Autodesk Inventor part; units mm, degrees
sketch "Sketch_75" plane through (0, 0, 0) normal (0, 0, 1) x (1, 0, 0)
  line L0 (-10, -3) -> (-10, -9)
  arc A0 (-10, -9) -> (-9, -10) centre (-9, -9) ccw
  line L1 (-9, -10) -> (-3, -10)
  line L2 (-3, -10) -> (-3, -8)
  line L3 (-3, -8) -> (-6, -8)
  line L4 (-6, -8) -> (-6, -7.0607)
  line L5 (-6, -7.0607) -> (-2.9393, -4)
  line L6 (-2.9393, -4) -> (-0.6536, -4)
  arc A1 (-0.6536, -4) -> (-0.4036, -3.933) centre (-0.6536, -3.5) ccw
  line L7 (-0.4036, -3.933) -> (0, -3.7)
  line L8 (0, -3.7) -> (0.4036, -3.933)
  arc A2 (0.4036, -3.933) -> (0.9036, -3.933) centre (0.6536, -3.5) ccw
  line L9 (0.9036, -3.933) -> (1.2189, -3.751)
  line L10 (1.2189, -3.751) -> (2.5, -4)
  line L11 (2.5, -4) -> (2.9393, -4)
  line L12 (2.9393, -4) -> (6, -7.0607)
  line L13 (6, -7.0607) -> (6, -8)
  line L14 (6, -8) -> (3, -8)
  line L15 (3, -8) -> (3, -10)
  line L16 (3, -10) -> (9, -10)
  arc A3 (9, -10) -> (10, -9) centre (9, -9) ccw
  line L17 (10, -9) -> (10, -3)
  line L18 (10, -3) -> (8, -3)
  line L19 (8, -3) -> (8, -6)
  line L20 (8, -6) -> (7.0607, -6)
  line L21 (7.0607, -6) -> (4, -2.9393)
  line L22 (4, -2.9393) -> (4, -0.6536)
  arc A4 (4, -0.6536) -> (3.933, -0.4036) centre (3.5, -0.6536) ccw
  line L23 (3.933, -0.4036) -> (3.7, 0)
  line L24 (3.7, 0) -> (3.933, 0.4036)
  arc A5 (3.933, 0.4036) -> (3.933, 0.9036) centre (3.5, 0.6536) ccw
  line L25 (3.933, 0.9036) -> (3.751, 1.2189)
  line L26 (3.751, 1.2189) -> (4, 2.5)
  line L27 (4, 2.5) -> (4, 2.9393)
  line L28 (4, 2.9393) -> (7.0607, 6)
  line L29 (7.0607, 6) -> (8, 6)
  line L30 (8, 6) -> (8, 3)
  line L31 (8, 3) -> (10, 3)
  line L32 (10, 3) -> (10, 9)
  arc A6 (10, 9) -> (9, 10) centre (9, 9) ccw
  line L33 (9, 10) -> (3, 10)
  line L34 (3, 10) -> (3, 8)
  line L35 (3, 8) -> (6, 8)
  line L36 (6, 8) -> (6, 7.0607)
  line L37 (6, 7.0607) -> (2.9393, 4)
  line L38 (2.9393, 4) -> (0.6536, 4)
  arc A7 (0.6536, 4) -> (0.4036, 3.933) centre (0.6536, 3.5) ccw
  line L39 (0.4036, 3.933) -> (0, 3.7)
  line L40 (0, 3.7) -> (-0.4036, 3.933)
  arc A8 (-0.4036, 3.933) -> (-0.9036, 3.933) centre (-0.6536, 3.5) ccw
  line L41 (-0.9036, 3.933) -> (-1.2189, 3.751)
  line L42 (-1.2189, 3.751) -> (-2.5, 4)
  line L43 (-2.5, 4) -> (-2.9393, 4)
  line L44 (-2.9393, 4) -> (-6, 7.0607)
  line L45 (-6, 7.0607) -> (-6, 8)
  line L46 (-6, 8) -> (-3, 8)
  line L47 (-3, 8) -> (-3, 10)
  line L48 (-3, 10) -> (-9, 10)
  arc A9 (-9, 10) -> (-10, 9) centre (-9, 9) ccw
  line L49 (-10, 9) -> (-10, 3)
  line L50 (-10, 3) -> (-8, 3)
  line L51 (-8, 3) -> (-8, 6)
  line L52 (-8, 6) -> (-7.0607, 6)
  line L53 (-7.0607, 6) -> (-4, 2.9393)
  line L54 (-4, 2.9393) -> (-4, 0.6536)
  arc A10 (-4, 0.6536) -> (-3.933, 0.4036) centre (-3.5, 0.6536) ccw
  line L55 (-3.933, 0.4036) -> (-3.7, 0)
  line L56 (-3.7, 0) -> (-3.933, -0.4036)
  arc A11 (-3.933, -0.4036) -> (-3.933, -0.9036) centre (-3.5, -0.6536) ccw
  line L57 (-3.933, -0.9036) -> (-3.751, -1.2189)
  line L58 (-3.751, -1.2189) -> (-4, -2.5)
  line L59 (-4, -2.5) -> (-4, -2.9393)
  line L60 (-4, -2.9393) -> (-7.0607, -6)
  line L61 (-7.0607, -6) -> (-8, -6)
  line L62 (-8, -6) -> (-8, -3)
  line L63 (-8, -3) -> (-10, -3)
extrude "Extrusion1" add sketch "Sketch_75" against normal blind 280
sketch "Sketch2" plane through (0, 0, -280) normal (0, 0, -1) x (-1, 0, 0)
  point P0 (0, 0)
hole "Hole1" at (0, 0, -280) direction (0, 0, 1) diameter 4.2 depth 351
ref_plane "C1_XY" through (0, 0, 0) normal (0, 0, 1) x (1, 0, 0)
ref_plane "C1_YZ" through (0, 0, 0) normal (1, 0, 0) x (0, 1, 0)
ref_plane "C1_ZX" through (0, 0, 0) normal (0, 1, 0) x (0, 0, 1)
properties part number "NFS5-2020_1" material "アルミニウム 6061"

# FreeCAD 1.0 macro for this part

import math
import FreeCAD as App
import Part
import Sketcher
Q = App.Units.Quantity

doc = App.newDocument("Part")
body = doc.addObject("PartDesign::Body", "Body")

# Sketch on XY plane
sketch1 = body.newObject("Sketcher::SketchObject", "Sketch")
sketch1.AttachmentSupport = (doc.getObject("XY_Plane"), [""])
sketch1.MapMode = "FlatFace"
sketch1.addGeometry(Part.LineSegment(App.Vector(-8, -3, 0), App.Vector(-10, -3, 0)), False)
sketch1.addGeometry(Part.LineSegment(App.Vector(-10, -3, 0), App.Vector(-10, -9, 0)), False)
sketch1.addGeometry(Part.ArcOfCircle(Part.Circle(App.Vector(-9, -9, 0), App.Vector(0, 0, 1), 1), math.radians(180), math.radians(270)), False)
sketch1.addGeometry(Part.LineSegment(App.Vector(-9, -10, 0), App.Vector(-3, -10, 0)), False)
sketch1.addGeometry(Part.LineSegment(App.Vector(-3, -10, 0), App.Vector(-3, -8, 0)), False)
sketch1.addGeometry(Part.LineSegment(App.Vector(-3, -8, 0), App.Vector(-6, -8, 0)), False)
sketch1.addGeometry(Part.LineSegment(App.Vector(-6, -8, 0), App.Vector(-6, -7.06, 0)), False)
sketch1.addGeometry(Part.LineSegment(App.Vector(-6, -7.06, 0), App.Vector(-2.94, -4, 0)), False)
sketch1.addGeometry(Part.LineSegment(App.Vector(-2.94, -4, 0), App.Vector(-0.65, -4, 0)), False)
sketch1.addGeometry(Part.ArcOfCircle(Part.Circle(App.Vector(-0.65, -3.5, 0), App.Vector(0, 0, 1), 0.5), math.radians(-90), math.radians(-60)), False)
sketch1.addGeometry(Part.LineSegment(App.Vector(-0.4, -3.93, 0), App.Vector(0, -3.7, 0)), False)
sketch1.addGeometry(Part.LineSegment(App.Vector(0, -3.7, 0), App.Vector(0.4, -3.93, 0)), False)
sketch1.addGeometry(Part.ArcOfCircle(Part.Circle(App.Vector(0.65, -3.5, 0), App.Vector(0, 0, 1), 0.5), math.radians(-120), math.radians(-60)), False)
sketch1.addGeometry(Part.LineSegment(App.Vector(0.9, -3.93, 0), App.Vector(1.22, -3.75, 0)), False)
sketch1.addGeometry(Part.LineSegment(App.Vector(1.22, -3.75, 0), App.Vector(2.5, -4, 0)), False)
sketch1.addGeometry(Part.LineSegment(App.Vector(2.5, -4, 0), App.Vector(2.94, -4, 0)), False)
sketch1.addGeometry(Part.LineSegment(App.Vector(2.94, -4, 0), App.Vector(6, -7.06, 0)), False)
sketch1.addGeometry(Part.LineSegment(App.Vector(6, -7.06, 0), App.Vector(6, -8, 0)), False)
sketch1.addGeometry(Part.LineSegment(App.Vector(6, -8, 0), App.Vector(3, -8, 0)), False)
sketch1.addGeometry(Part.LineSegment(App.Vector(3, -8, 0), App.Vector(3, -10, 0)), False)
sketch1.addGeometry(Part.LineSegment(App.Vector(3, -10, 0), App.Vector(9, -10, 0)), False)
sketch1.addGeometry(Part.ArcOfCircle(Part.Circle(App.Vector(9, -9, 0), App.Vector(0, 0, 1), 1), math.radians(-90), math.radians(0)), False)
sketch1.addGeometry(Part.LineSegment(App.Vector(10, -9, 0), App.Vector(10, -3, 0)), False)
sketch1.addGeometry(Part.LineSegment(App.Vector(10, -3, 0), App.Vector(8, -3, 0)), False)
sketch1.addGeometry(Part.LineSegment(App.Vector(8, -3, 0), App.Vector(8, -6, 0)), False)
sketch1.addGeometry(Part.LineSegment(App.Vector(8, -6, 0), App.Vector(7.06, -6, 0)), False)
sketch1.addGeometry(Part.LineSegment(App.Vector(7.06, -6, 0), App.Vector(4, -2.94, 0)), False)
sketch1.addGeometry(Part.LineSegment(App.Vector(4, -2.94, 0), App.Vector(4, -0.65, 0)), False)
sketch1.addGeometry(Part.ArcOfCircle(Part.Circle(App.Vector(3.5, -0.65, 0), App.Vector(0, 0, 1), 0.5), math.radians(0), math.radians(30)), False)
sketch1.addGeometry(Part.LineSegment(App.Vector(3.93, -0.4, 0), App.Vector(3.7, 0, 0)), False)
sketch1.addGeometry(Part.LineSegment(App.Vector(3.7, 0, 0), App.Vector(3.93, 0.4, 0)), False)
sketch1.addGeometry(Part.ArcOfCircle(Part.Circle(App.Vector(3.5, 0.65, 0), App.Vector(0, 0, 1), 0.5), math.radians(-30), math.radians(30)), False)
sketch1.addGeometry(Part.LineSegment(App.Vector(3.93, 0.9, 0), App.Vector(3.75, 1.22, 0)), False)
sketch1.addGeometry(Part.LineSegment(App.Vector(3.75, 1.22, 0), App.Vector(4, 2.5, 0)), False)
sketch1.addGeometry(Part.LineSegment(App.Vector(4, 2.5, 0), App.Vector(4, 2.94, 0)), False)
sketch1.addGeometry(Part.LineSegment(App.Vector(4, 2.94, 0), App.Vector(7.06, 6, 0)), False)
sketch1.addGeometry(Part.LineSegment(App.Vector(7.06, 6, 0), App.Vector(8, 6, 0)), False)
sketch1.addGeometry(Part.LineSegment(App.Vector(8, 6, 0), App.Vector(8, 3, 0)), False)
sketch1.addGeometry(Part.LineSegment(App.Vector(8, 3, 0), App.Vector(10, 3, 0)), False)
sketch1.addGeometry(Part.LineSegment(App.Vector(10, 3, 0), App.Vector(10, 9, 0)), False)
sketch1.addGeometry(Part.ArcOfCircle(Part.Circle(App.Vector(9, 9, 0), App.Vector(0, 0, 1), 1), math.radians(0), math.radians(90)), False)
sketch1.addGeometry(Part.LineSegment(App.Vector(9, 10, 0), App.Vector(3, 10, 0)), False)
sketch1.addGeometry(Part.LineSegment(App.Vector(3, 10, 0), App.Vector(3, 8, 0)), False)
sketch1.addGeometry(Part.LineSegment(App.Vector(3, 8, 0), App.Vector(6, 8, 0)), False)
sketch1.addGeometry(Part.LineSegment(App.Vector(6, 8, 0), App.Vector(6, 7.06, 0)), False)
sketch1.addGeometry(Part.LineSegment(App.Vector(6, 7.06, 0), App.Vector(2.94, 4, 0)), False)
sketch1.addGeometry(Part.LineSegment(App.Vector(2.94, 4, 0), App.Vector(0.65, 4, 0)), False)
sketch1.addGeometry(Part.ArcOfCircle(Part.Circle(App.Vector(0.65, 3.5, 0), App.Vector(0, 0, 1), 0.5), math.radians(90), math.radians(120)), False)
sketch1.addGeometry(Part.LineSegment(App.Vector(0.4, 3.93, 0), App.Vector(0, 3.7, 0)), False)
sketch1.addGeometry(Part.LineSegment(App.Vector(0, 3.7, 0), App.Vector(-0.4, 3.93, 0)), False)
sketch1.addGeometry(Part.ArcOfCircle(Part.Circle(App.Vector(-0.65, 3.5, 0), App.Vector(0, 0, 1), 0.5), math.radians(60), math.radians(120)), False)
sketch1.addGeometry(Part.LineSegment(App.Vector(-0.9, 3.93, 0), App.Vector(-1.22, 3.75, 0)), False)
sketch1.addGeometry(Part.LineSegment(App.Vector(-1.22, 3.75, 0), App.Vector(-2.5, 4, 0)), False)
sketch1.addGeometry(Part.LineSegment(App.Vector(-2.5, 4, 0), App.Vector(-2.94, 4, 0)), False)
sketch1.addGeometry(Part.LineSegment(App.Vector(-2.94, 4, 0), App.Vector(-6, 7.06, 0)), False)
sketch1.addGeometry(Part.LineSegment(App.Vector(-6, 7.06, 0), App.Vector(-6, 8, 0)), False)
sketch1.addGeometry(Part.LineSegment(App.Vector(-6, 8, 0), App.Vector(-3, 8, 0)), False)
sketch1.addGeometry(Part.LineSegment(App.Vector(-3, 8, 0), App.Vector(-3, 10, 0)), False)
sketch1.addGeometry(Part.LineSegment(App.Vector(-3, 10, 0), App.Vector(-9, 10, 0)), False)
sketch1.addGeometry(Part.ArcOfCircle(Part.Circle(App.Vector(-9, 9, 0), App.Vector(0, 0, 1), 1), math.radians(90), math.radians(180)), False)
sketch1.addGeometry(Part.LineSegment(App.Vector(-10, 9, 0), App.Vector(-10, 3, 0)), False)
sketch1.addGeometry(Part.LineSegment(App.Vector(-10, 3, 0), App.Vector(-8, 3, 0)), False)
sketch1.addGeometry(Part.LineSegment(App.Vector(-8, 3, 0), App.Vector(-8, 6, 0)), False)
sketch1.addGeometry(Part.LineSegment(App.Vector(-8, 6, 0), App.Vector(-7.06, 6, 0)), False)
sketch1.addGeometry(Part.LineSegment(App.Vector(-7.06, 6, 0), App.Vector(-4, 2.94, 0)), False)
sketch1.addGeometry(Part.LineSegment(App.Vector(-4, 2.94, 0), App.Vector(-4, 0.65, 0)), False)
sketch1.addGeometry(Part.ArcOfCircle(Part.Circle(App.Vector(-3.5, 0.65, 0), App.Vector(0, 0, 1), 0.5), math.radians(180), math.radians(210)), False)
sketch1.addGeometry(Part.LineSegment(App.Vector(-3.93, 0.4, 0), App.Vector(-3.7, 0, 0)), False)
sketch1.addGeometry(Part.LineSegment(App.Vector(-3.7, 0, 0), App.Vector(-3.93, -0.4, 0)), False)
sketch1.addGeometry(Part.ArcOfCircle(Part.Circle(App.Vector(-3.5, -0.65, 0), App.Vector(0, 0, 1), 0.5), math.radians(150), math.radians(210)), False)
sketch1.addGeometry(Part.LineSegment(App.Vector(-3.93, -0.9, 0), App.Vector(-3.75, -1.22, 0)), False)
sketch1.addGeometry(Part.LineSegment(App.Vector(-3.75, -1.22, 0), App.Vector(-4, -2.5, 0)), False)
sketch1.addGeometry(Part.LineSegment(App.Vector(-4, -2.5, 0), App.Vector(-4, -2.94, 0)), False)
sketch1.addGeometry(Part.LineSegment(App.Vector(-4, -2.94, 0), App.Vector(-7.06, -6, 0)), False)
sketch1.addGeometry(Part.LineSegment(App.Vector(-7.06, -6, 0), App.Vector(-8, -6, 0)), False)
sketch1.addGeometry(Part.LineSegment(App.Vector(-8, -6, 0), App.Vector(-8, -3, 0)), False)
sketch1.addConstraint(Sketcher.Constraint("Coincident", 0, 2, 1, 1))
sketch1.addConstraint(Sketcher.Constraint("Tangent", 1, 2, 2, 1))
sketch1.addConstraint(Sketcher.Constraint("Tangent", 2, 2, 3, 1))
sketch1.addConstraint(Sketcher.Constraint("Coincident", 3, 2, 4, 1))
sketch1.addConstraint(Sketcher.Constraint("Coincident", 4, 2, 5, 1))
sketch1.addConstraint(Sketcher.Constraint("Coincident", 5, 2, 6, 1))
sketch1.addConstraint(Sketcher.Constraint("Coincident", 6, 2, 7, 1))
sketch1.addConstraint(Sketcher.Constraint("Coincident", 7, 2, 8, 1))
sketch1.addConstraint(Sketcher.Constraint("Tangent", 8, 2, 9, 1))
sketch1.addConstraint(Sketcher.Constraint("Tangent", 9, 2, 10, 1))
sketch1.addConstraint(Sketcher.Constraint("Coincident", 10, 2, 11, 1))
sketch1.addConstraint(Sketcher.Constraint("Tangent", 11, 2, 12, 1))
sketch1.addConstraint(Sketcher.Constraint("Tangent", 12, 2, 13, 1))
sketch1.addConstraint(Sketcher.Constraint("Coincident", 13, 2, 14, 1))
sketch1.addConstraint(Sketcher.Constraint("Coincident", 14, 2, 15, 1))
sketch1.addConstraint(Sketcher.Constraint("Coincident", 15, 2, 16, 1))
sketch1.addConstraint(Sketcher.Constraint("Coincident", 16, 2, 17, 1))
sketch1.addConstraint(Sketcher.Constraint("Coincident", 17, 2, 18, 1))
sketch1.addConstraint(Sketcher.Constraint("Coincident", 18, 2, 19, 1))
sketch1.addConstraint(Sketcher.Constraint("Coincident", 19, 2, 20, 1))
sketch1.addConstraint(Sketcher.Constraint("Tangent", 20, 2, 21, 1))
sketch1.addConstraint(Sketcher.Constraint("Tangent", 21, 2, 22, 1))
sketch1.addConstraint(Sketcher.Constraint("Coincident", 22, 2, 23, 1))
sketch1.addConstraint(Sketcher.Constraint("Coincident", 23, 2, 24, 1))
sketch1.addConstraint(Sketcher.Constraint("Coincident", 24, 2, 25, 1))
sketch1.addConstraint(Sketcher.Constraint("Coincident", 25, 2, 26, 1))
sketch1.addConstraint(Sketcher.Constraint("Coincident", 26, 2, 27, 1))
sketch1.addConstraint(Sketcher.Constraint("Tangent", 27, 2, 28, 1))
sketch1.addConstraint(Sketcher.Constraint("Tangent", 28, 2, 29, 1))
sketch1.addConstraint(Sketcher.Constraint("Coincident", 29, 2, 30, 1))
sketch1.addConstraint(Sketcher.Constraint("Tangent", 30, 2, 31, 1))
sketch1.addConstraint(Sketcher.Constraint("Tangent", 31, 2, 32, 1))
sketch1.addConstraint(Sketcher.Constraint("Coincident", 32, 2, 33, 1))
sketch1.addConstraint(Sketcher.Constraint("Coincident", 33, 2, 34, 1))
sketch1.addConstraint(Sketcher.Constraint("Coincident", 34, 2, 35, 1))
sketch1.addConstraint(Sketcher.Constraint("Coincident", 35, 2, 36, 1))
sketch1.addConstraint(Sketcher.Constraint("Coincident", 36, 2, 37, 1))
sketch1.addConstraint(Sketcher.Constraint("Coincident", 37, 2, 38, 1))
sketch1.addConstraint(Sketcher.Constraint("Coincident", 38, 2, 39, 1))
sketch1.addConstraint(Sketcher.Constraint("Tangent", 39, 2, 40, 1))
sketch1.addConstraint(Sketcher.Constraint("Tangent", 40, 2, 41, 1))
sketch1.addConstraint(Sketcher.Constraint("Coincident", 41, 2, 42, 1))
sketch1.addConstraint(Sketcher.Constraint("Coincident", 42, 2, 43, 1))
sketch1.addConstraint(Sketcher.Constraint("Coincident", 43, 2, 44, 1))
sketch1.addConstraint(Sketcher.Constraint("Coincident", 44, 2, 45, 1))
sketch1.addConstraint(Sketcher.Constraint("Coincident", 45, 2, 46, 1))
sketch1.addConstraint(Sketcher.Constraint("Tangent", 46, 2, 47, 1))
sketch1.addConstraint(Sketcher.Constraint("Tangent", 47, 2, 48, 1))
sketch1.addConstraint(Sketcher.Constraint("Coincident", 48, 2, 49, 1))
sketch1.addConstraint(Sketcher.Constraint("Tangent", 49, 2, 50, 1))
sketch1.addConstraint(Sketcher.Constraint("Tangent", 50, 2, 51, 1))
sketch1.addConstraint(Sketcher.Constraint("Coincident", 51, 2, 52, 1))
sketch1.addConstraint(Sketcher.Constraint("Coincident", 52, 2, 53, 1))
sketch1.addConstraint(Sketcher.Constraint("Coincident", 53, 2, 54, 1))
sketch1.addConstraint(Sketcher.Constraint("Coincident", 54, 2, 55, 1))
sketch1.addConstraint(Sketcher.Constraint("Coincident", 55, 2, 56, 1))
sketch1.addConstraint(Sketcher.Constraint("Coincident", 56, 2, 57, 1))
sketch1.addConstraint(Sketcher.Constraint("Coincident", 57, 2, 58, 1))
sketch1.addConstraint(Sketcher.Constraint("Tangent", 58, 2, 59, 1))
sketch1.addConstraint(Sketcher.Constraint("Tangent", 59, 2, 60, 1))
sketch1.addConstraint(Sketcher.Constraint("Coincident", 60, 2, 61, 1))
sketch1.addConstraint(Sketcher.Constraint("Coincident", 61, 2, 62, 1))
sketch1.addConstraint(Sketcher.Constraint("Coincident", 62, 2, 63, 1))
sketch1.addConstraint(Sketcher.Constraint("Coincident", 63, 2, 64, 1))
sketch1.addConstraint(Sketcher.Constraint("Coincident", 64, 2, 65, 1))
sketch1.addConstraint(Sketcher.Constraint("Tangent", 65, 2, 66, 1))
sketch1.addConstraint(Sketcher.Constraint("Tangent", 66, 2, 67, 1))
sketch1.addConstraint(Sketcher.Constraint("Coincident", 67, 2, 68, 1))
sketch1.addConstraint(Sketcher.Constraint("Tangent", 68, 2, 69, 1))
sketch1.addConstraint(Sketcher.Constraint("Tangent", 69, 2, 70, 1))
sketch1.addConstraint(Sketcher.Constraint("Coincident", 70, 2, 71, 1))
sketch1.addConstraint(Sketcher.Constraint("Coincident", 71, 2, 72, 1))
sketch1.addConstraint(Sketcher.Constraint("Coincident", 72, 2, 73, 1))
sketch1.addConstraint(Sketcher.Constraint("Coincident", 73, 2, 74, 1))
sketch1.addConstraint(Sketcher.Constraint("Coincident", 74, 2, 75, 1))
sketch1.addConstraint(Sketcher.Constraint("Coincident", 75, 2, 0, 1))
sketch1.addConstraint(Sketcher.Constraint("Horizontal", 0))
sketch1.addConstraint(Sketcher.Constraint("Vertical", 1))
sketch1.addConstraint(Sketcher.Constraint("Horizontal", 3))
sketch1.addConstraint(Sketcher.Constraint("Vertical", 4))
sketch1.addConstraint(Sketcher.Constraint("Horizontal", 5))
sketch1.addConstraint(Sketcher.Constraint("Vertical", 6))
sketch1.addConstraint(Sketcher.Constraint("Horizontal", 8))
sketch1.addConstraint(Sketcher.Constraint("Horizontal", 15))
sketch1.addConstraint(Sketcher.Constraint("Vertical", 17))
sketch1.addConstraint(Sketcher.Constraint("Horizontal", 18))
sketch1.addConstraint(Sketcher.Constraint("Vertical", 19))
sketch1.addConstraint(Sketcher.Constraint("Horizontal", 20))
sketch1.addConstraint(Sketcher.Constraint("Vertical", 22))
sketch1.addConstraint(Sketcher.Constraint("Horizontal", 23))
sketch1.addConstraint(Sketcher.Constraint("Vertical", 24))
sketch1.addConstraint(Sketcher.Constraint("Horizontal", 25))
sketch1.addConstraint(Sketcher.Constraint("Vertical", 27))
sketch1.addConstraint(Sketcher.Constraint("Vertical", 34))
sketch1.addConstraint(Sketcher.Constraint("Horizontal", 36))
sketch1.addConstraint(Sketcher.Constraint("Vertical", 37))
sketch1.addConstraint(Sketcher.Constraint("Horizontal", 38))
sketch1.addConstraint(Sketcher.Constraint("Vertical", 39))
sketch1.addConstraint(Sketcher.Constraint("Horizontal", 41))
sketch1.addConstraint(Sketcher.Constraint("Vertical", 42))
sketch1.addConstraint(Sketcher.Constraint("Horizontal", 43))
sketch1.addConstraint(Sketcher.Constraint("Vertical", 44))
sketch1.addConstraint(Sketcher.Constraint("Horizontal", 46))
sketch1.addConstraint(Sketcher.Constraint("Horizontal", 53))
sketch1.addConstraint(Sketcher.Constraint("Vertical", 55))
sketch1.addConstraint(Sketcher.Constraint("Horizontal", 56))
sketch1.addConstraint(Sketcher.Constraint("Vertical", 57))
sketch1.addConstraint(Sketcher.Constraint("Horizontal", 58))
sketch1.addConstraint(Sketcher.Constraint("Vertical", 60))
sketch1.addConstraint(Sketcher.Constraint("Horizontal", 61))
sketch1.addConstraint(Sketcher.Constraint("Vertical", 62))
sketch1.addConstraint(Sketcher.Constraint("Horizontal", 63))
sketch1.addConstraint(Sketcher.Constraint("Vertical", 65))
sketch1.addConstraint(Sketcher.Constraint("Vertical", 72))
sketch1.addConstraint(Sketcher.Constraint("Horizontal", 74))
sketch1.addConstraint(Sketcher.Constraint("Vertical", 75))
sketch1.addConstraint(Sketcher.Constraint("Equal", 9, 12))
sketch1.addConstraint(Sketcher.Constraint("Equal", 2, 21))
sketch1.addConstraint(Sketcher.Constraint("Equal", 12, 28))
sketch1.addConstraint(Sketcher.Constraint("Equal", 28, 31))
sketch1.addConstraint(Sketcher.Constraint("Equal", 21, 40))
sketch1.addConstraint(Sketcher.Constraint("Equal", 31, 47))
sketch1.addConstraint(Sketcher.Constraint("Equal", 47, 50))
sketch1.addConstraint(Sketcher.Constraint("Equal", 40, 59))
sketch1.addConstraint(Sketcher.Constraint("Equal", 50, 66))
sketch1.addConstraint(Sketcher.Constraint("Equal", 66, 69))
sketch1.addConstraint(Sketcher.Constraint("Symmetric", 2, 3, 40, 3, -1, 1))
sketch1.addConstraint(Sketcher.Constraint("Symmetric", 9, 3, 47, 3, -1, 1))
sketch1.addConstraint(Sketcher.Constraint("Symmetric", 12, 3, 50, 3, -1, 1))
sketch1.addConstraint(Sketcher.Constraint("Symmetric", 21, 3, 59, 3, -1, 1))
sketch1.addConstraint(Sketcher.Constraint("Symmetric", 28, 3, 66, 3, -1, 1))
sketch1.addConstraint(Sketcher.Constraint("Symmetric", 31, 3, 69, 3, -1, 1))
sketch1.addConstraint(Sketcher.Constraint("Symmetric", 4, 2, 42, 2, -1, 1))
sketch1.addConstraint(Sketcher.Constraint("Symmetric", 6, 2, 44, 2, -1, 1))
sketch1.addConstraint(Sketcher.Constraint("Symmetric", 10, 2, 48, 2, -1, 1))
sketch1.addConstraint(Sketcher.Constraint("Symmetric", 13, 2, 51, 2, -1, 1))
sketch1.addConstraint(Sketcher.Constraint("Symmetric", 14, 2, 52, 2, -1, 1))
sketch1.addConstraint(Sketcher.Constraint("Symmetric", 16, 2, 54, 2, -1, 1))
sketch1.addConstraint(Sketcher.Constraint("Symmetric", 18, 2, 56, 2, -1, 1))
sketch1.addConstraint(Sketcher.Constraint("Symmetric", 23, 2, 61, 2, -1, 1))
sketch1.addConstraint(Sketcher.Constraint("Symmetric", 25, 2, 63, 2, -1, 1))
sketch1.addConstraint(Sketcher.Constraint("Symmetric", 29, 2, 67, 2, -1, 1))
sketch1.addConstraint(Sketcher.Constraint("Symmetric", 32, 2, 70, 2, -1, 1))
sketch1.addConstraint(Sketcher.Constraint("Symmetric", 33, 2, 71, 2, -1, 1))
sketch1.addConstraint(Sketcher.Constraint("Symmetric", 35, 2, 73, 2, -1, 1))
sketch1.addConstraint(Sketcher.Constraint("Symmetric", 37, 2, 75, 2, -1, 1))
sketch1.addConstraint(Sketcher.Constraint("Symmetric", 9, 3, 12, 3, -2))
sketch1.addConstraint(Sketcher.Constraint("Symmetric", 2, 3, 21, 3, -2))
sketch1.addConstraint(Sketcher.Constraint("Symmetric", 31, 3, 66, 3, -2))
sketch1.addConstraint(Sketcher.Constraint("Symmetric", 7, 2, 15, 2, -2))
sketch1.addConstraint(Sketcher.Constraint("Symmetric", 6, 2, 16, 2, -2))
sketch1.addConstraint(Sketcher.Constraint("Symmetric", 4, 2, 18, 2, -2))
sketch1.addConstraint(Sketcher.Constraint("Symmetric", 37, 2, 61, 2, -2))
sketch1.addConstraint(Sketcher.Constraint("Symmetric", 35, 2, 63, 2, -2))
sketch1.addConstraint(Sketcher.Constraint("Symmetric", 34, 2, 64, 2, -2))
sketch1.addConstraint(Sketcher.Constraint("PointOnObject", 10, 2, -2))
sketch1.addConstraint(Sketcher.Constraint("PointOnObject", 29, 2, -1))
sketch1.addConstraint(Sketcher.Constraint("Parallel", 10, 13))
sketch1.addConstraint(Sketcher.Constraint("Perpendicular", 7, 16))
sketch1.addConstraint(Sketcher.Constraint("Parallel", 16, 26))
sketch1.addConstraint(Sketcher.Constraint("Perpendicular", 13, 29))
sketch1.addConstraint(Sketcher.Constraint("Parallel", 29, 32))
sketch1.addConstraint(Sketcher.Constraint("Perpendicular", 14, 33))
sketch1.addConstraint(Sketcher.Constraint("Perpendicular", 26, 35))
sketch1.addConstraint(Sketcher.Constraint("Parallel", 35, 45))
sketch1.addConstraint(Sketcher.Constraint("Perpendicular", 45, 54))
sketch1.addConstraint(Sketcher.Constraint("Perpendicular", 64, 73))
sketch1.addConstraint(Sketcher.Constraint("Equal", 58, 1))
sketch1.addConstraint(Sketcher.Constraint("Equal", 61, 4))
sketch1.addConstraint(Sketcher.Constraint("Equal", 74, 6))
sketch1.addConstraint(Sketcher.Constraint("Equal", 56, 24))
sketch1.addConstraint(Sketcher.Constraint("Equal", 46, 27))
sketch1.addConstraint(Sketcher.Constraint("Equal", 53, 34))
sketch1.addConstraint(Sketcher.Constraint("Equal", 16, 26))
sketch1.addConstraint(Sketcher.Constraint("Equal", 11, 29))
sketch1.addConstraint(Sketcher.Constraint("Radius", 2, Q("1 mm")))
sketch1.addConstraint(Sketcher.Constraint("Radius", 9, Q("0.5 mm")))
sketch1.addConstraint(Sketcher.Constraint("DistanceX", 0, 2, 0, 1, Q("2 mm")))
sketch1.addConstraint(Sketcher.Constraint("DistanceX", 3, 1, 3, 2, Q("6 mm")))
sketch1.addConstraint(Sketcher.Constraint("DistanceX", 5, 2, 5, 1, Q("3 mm")))
sketch1.addConstraint(Sketcher.Constraint("Angle", 14, Q("-10.999 deg")))
sketch1.addConstraint(Sketcher.Constraint("DistanceX", 2, 3, -1, 1, Q("9 mm")))
sketch1.addConstraint(Sketcher.Constraint("DistanceY", 7, 2, -1, 1, Q("4 mm")))
sketch1.addConstraint(Sketcher.Constraint("DistanceY", 10, 2, -1, 1, Q("3.7 mm")))
sketch1.addConstraint(Sketcher.Constraint("DistanceX", -1, 1, 14, 2, Q("2.5 mm")))
sketch1.addConstraint(Sketcher.Constraint("Distance", 10, Q("0.466 mm")))
sketch1.addConstraint(Sketcher.Constraint("DistanceX", 8, 1, 8, 2, Q("2.2857 mm")))
pad1 = body.newObject("PartDesign::Pad", "Pad")
pad1.Profile = sketch1
pad1.Length = 280
pad1.Reversed = True

# Sketch on XY plane
sketch2 = body.newObject("Sketcher::SketchObject", "Sketch001")
sketch2.AttachmentSupport = (doc.getObject("XY_Plane"), [""])
sketch2.MapMode = "FlatFace"
sketch2.AttachmentOffset = App.Placement(App.Vector(0, 0, -280), App.Rotation())
sketch2.addGeometry(Part.Circle(App.Vector(0, 0, 0), App.Vector(0, 0, 1), 2.1), False)
sketch2.addConstraint(Sketcher.Constraint("Coincident", 0, 3, -1, 1))
sketch2.addConstraint(Sketcher.Constraint("Diameter", 0, Q("4.2 mm")))
doc.recompute()
hole = body.newObject("PartDesign::Hole", "Hole")
hole.Profile = sketch2
hole.ThreadType = "None"
hole.Diameter = 4.2
hole.DepthType = "Dimension"
hole.Depth = 351
hole.DrillPoint = "Flat"
hole.Reversed = True

doc.recompute()
